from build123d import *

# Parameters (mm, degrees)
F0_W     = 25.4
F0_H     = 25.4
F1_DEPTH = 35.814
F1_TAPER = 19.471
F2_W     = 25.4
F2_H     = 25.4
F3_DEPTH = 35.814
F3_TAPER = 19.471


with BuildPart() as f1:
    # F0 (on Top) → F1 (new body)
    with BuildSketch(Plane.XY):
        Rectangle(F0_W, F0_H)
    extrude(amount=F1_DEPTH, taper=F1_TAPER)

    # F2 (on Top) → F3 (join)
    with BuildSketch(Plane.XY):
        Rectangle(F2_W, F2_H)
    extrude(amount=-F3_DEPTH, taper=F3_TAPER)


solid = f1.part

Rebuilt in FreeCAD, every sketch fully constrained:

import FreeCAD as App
import Part
import Sketcher

V = App.Vector
Q = App.Units.Quantity

doc = App.newDocument("Part")
body = doc.addObject("PartDesign::Body", "Body")

# Sketch on XY plane
sketch1 = doc.addObject("Sketcher::SketchObject", "Sketch")
body.addObject(sketch1)
sketch1.AttachmentSupport = (doc.XY_Plane, [""])
sketch1.MapMode = "FlatFace"
sketch1.addGeometry([
    Part.LineSegment(V(-12.7, 12.7, 0), V(-12.7, -12.7, 0)),
    Part.LineSegment(V(-12.7, -12.7, 0), V(12.7, -12.7, 0)),
    Part.LineSegment(V(12.7, -12.7, 0), V(12.7, 12.7, 0)),
    Part.LineSegment(V(12.7, 12.7, 0), V(-12.7, 12.7, 0)),
], False)
sketch1.addConstraint([
    Sketcher.Constraint("Coincident", 0, 2, 1, 1),
    Sketcher.Constraint("Coincident", 1, 2, 2, 1),
    Sketcher.Constraint("Coincident", 2, 2, 3, 1),
    Sketcher.Constraint("Coincident", 3, 2, 0, 1),
    Sketcher.Constraint("Vertical", 0),
    Sketcher.Constraint("Horizontal", 1),
    Sketcher.Constraint("Vertical", 2),
    Sketcher.Constraint("Horizontal", 3),
    Sketcher.Constraint("Symmetric", 0, 2, 2, 2, -1, 1),
    Sketcher.Constraint("Equal", 3, 0),
    Sketcher.Constraint("DistanceX", 1, 1, 1, 2, Q("1 in")),
])
pad1 = doc.addObject("PartDesign::Pad", "Pad")
body.addObject(pad1)
pad1.Profile = sketch1
pad1.Length = Q("1.41 in")
pad1.TaperAngle = -19.471

# Sketch on XY plane
sketch2 = doc.addObject("Sketcher::SketchObject", "Sketch001")
body.addObject(sketch2)
sketch2.AttachmentSupport = (doc.XY_Plane, [""])
sketch2.MapMode = "FlatFace"
sketch2.addGeometry([
    Part.LineSegment(V(-12.7, 12.7, 0), V(-12.7, -12.7, 0)),
    Part.LineSegment(V(-12.7, -12.7, 0), V(12.7, -12.7, 0)),
    Part.LineSegment(V(12.7, -12.7, 0), V(12.7, 12.7, 0)),
    Part.LineSegment(V(12.7, 12.7, 0), V(-12.7, 12.7, 0)),
], False)
sketch2.addConstraint([
    Sketcher.Constraint("Coincident", 0, 2, 1, 1),
    Sketcher.Constraint("Coincident", 1, 2, 2, 1),
    Sketcher.Constraint("Coincident", 2, 2, 3, 1),
    Sketcher.Constraint("Coincident", 3, 2, 0, 1),
    Sketcher.Constraint("Vertical", 0),
    Sketcher.Constraint("Horizontal", 1),
    Sketcher.Constraint("Vertical", 2),
    Sketcher.Constraint("Horizontal", 3),
    Sketcher.Constraint("Symmetric", 0, 2, 2, 2, -1, 1),
    Sketcher.Constraint("Equal", 3, 0),
    Sketcher.Constraint("DistanceX", 1, 1, 1, 2, Q("1 in")),
])
pad2 = doc.addObject("PartDesign::Pad", "Pad001")
body.addObject(pad2)
pad2.Profile = sketch2
pad2.Length = Q("1.41 in")
pad2.Reversed = True
pad2.TaperAngle = -19.471

doc.recompute()
